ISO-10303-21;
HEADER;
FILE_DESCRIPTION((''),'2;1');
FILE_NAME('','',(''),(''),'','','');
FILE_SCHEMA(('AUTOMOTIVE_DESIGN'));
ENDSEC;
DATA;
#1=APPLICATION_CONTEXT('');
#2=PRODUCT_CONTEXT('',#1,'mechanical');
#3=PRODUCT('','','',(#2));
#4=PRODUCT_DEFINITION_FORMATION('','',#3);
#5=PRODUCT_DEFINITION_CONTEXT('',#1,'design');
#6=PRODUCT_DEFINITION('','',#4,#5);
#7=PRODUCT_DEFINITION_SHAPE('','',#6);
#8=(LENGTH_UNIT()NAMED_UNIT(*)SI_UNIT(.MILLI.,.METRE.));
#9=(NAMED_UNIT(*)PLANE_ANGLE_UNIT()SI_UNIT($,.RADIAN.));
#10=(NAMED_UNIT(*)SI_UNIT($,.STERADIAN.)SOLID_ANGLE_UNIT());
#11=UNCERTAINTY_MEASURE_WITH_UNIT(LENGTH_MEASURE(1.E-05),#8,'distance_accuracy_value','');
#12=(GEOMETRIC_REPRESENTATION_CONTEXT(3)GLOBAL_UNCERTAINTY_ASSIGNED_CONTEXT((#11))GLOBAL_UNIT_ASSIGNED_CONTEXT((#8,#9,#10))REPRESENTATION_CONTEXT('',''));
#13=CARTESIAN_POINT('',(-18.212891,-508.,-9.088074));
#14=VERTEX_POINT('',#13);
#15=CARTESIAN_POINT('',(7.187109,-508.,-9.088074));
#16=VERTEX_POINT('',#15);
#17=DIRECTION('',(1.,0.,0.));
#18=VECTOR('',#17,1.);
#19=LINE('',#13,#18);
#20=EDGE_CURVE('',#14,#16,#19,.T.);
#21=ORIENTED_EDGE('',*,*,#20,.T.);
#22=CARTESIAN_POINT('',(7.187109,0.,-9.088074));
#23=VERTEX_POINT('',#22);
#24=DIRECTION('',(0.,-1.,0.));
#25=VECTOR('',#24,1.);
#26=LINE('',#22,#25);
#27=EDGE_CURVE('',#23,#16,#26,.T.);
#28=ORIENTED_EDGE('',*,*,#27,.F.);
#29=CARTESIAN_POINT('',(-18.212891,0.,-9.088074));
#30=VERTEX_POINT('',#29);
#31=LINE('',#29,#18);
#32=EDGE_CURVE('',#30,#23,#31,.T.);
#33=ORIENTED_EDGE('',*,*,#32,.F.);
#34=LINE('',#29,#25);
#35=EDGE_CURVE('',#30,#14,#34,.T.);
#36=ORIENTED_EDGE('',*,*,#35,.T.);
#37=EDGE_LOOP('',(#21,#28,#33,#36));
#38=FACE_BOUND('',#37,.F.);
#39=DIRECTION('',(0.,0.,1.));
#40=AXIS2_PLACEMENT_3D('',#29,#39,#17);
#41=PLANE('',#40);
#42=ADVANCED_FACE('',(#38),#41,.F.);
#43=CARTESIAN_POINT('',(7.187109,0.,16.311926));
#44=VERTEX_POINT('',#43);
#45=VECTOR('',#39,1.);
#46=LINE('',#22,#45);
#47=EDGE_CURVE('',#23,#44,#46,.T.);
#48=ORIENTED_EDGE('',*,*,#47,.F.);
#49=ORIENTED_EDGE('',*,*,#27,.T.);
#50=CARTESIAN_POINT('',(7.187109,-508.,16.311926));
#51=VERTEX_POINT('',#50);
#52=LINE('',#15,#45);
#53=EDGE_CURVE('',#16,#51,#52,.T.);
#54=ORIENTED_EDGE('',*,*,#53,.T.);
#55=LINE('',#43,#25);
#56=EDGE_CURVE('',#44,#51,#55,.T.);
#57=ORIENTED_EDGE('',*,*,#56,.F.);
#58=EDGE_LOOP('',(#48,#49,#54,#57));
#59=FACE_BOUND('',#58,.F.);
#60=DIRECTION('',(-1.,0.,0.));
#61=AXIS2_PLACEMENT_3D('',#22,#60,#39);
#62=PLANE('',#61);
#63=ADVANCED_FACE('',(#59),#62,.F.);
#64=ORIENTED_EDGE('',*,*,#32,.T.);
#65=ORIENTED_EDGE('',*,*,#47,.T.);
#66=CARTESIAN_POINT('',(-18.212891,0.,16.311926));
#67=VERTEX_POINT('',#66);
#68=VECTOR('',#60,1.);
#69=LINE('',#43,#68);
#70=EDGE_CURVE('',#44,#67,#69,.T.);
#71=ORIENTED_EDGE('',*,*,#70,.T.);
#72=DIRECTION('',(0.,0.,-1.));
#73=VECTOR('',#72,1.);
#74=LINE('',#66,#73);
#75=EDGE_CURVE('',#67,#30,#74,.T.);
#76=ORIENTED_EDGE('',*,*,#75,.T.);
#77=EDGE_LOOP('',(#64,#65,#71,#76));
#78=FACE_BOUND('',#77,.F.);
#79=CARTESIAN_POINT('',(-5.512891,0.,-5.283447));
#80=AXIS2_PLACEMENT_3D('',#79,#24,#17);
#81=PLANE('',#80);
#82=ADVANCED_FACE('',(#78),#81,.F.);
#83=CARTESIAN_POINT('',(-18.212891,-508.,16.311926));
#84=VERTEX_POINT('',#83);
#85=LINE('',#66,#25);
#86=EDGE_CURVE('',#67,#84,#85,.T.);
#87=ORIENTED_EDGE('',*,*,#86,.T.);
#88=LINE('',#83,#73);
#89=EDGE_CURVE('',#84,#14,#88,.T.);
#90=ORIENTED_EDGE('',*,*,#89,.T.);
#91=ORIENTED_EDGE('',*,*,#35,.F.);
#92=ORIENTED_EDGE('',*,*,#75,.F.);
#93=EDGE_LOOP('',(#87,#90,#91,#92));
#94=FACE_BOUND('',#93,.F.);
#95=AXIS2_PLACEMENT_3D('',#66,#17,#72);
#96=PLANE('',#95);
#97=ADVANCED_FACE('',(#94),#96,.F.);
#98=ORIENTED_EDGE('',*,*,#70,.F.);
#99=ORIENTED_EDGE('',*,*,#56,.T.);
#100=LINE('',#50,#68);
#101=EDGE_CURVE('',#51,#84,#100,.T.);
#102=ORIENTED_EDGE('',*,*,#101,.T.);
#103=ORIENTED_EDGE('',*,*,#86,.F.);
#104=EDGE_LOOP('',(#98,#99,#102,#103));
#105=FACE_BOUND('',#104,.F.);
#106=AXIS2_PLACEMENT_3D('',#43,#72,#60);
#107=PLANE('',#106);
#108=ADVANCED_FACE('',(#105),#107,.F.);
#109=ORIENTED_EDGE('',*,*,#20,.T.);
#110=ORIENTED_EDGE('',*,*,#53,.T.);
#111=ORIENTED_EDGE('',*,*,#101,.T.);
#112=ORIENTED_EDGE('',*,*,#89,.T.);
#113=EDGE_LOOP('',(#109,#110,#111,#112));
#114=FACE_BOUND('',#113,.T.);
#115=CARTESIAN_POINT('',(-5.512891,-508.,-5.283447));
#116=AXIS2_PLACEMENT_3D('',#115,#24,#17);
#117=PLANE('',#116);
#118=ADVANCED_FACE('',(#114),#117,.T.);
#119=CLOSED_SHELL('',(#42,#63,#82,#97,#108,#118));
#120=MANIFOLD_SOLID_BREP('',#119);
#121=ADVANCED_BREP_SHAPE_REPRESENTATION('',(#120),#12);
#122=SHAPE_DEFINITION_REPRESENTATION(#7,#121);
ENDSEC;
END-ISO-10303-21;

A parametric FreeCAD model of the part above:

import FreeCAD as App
import Part
import Sketcher
from FreeCAD import Vector
Q = App.Units.Quantity


def add_polygon(sketch, points):
    """Adds a closed chain of lines whose ends are joined by coincident constraints."""
    first, n = sketch.GeometryCount, len(points)
    for a, b in zip(points, points[1:] + points[:1]):
        sketch.addGeometry(Part.LineSegment(App.Vector(*a, 0), App.Vector(*b, 0)), False)
    for i in range(n):
        sketch.addConstraint(Sketcher.Constraint("Coincident", first + i, 2, first + (i + 1) % n, 1))

doc = App.newDocument("Part")
body = doc.addObject("PartDesign::Body", "Body")

# Sketch on XZ plane
sketch1 = doc.addObject("Sketcher::SketchObject", "Sketch")
body.addObject(sketch1)
sketch1.AttachmentSupport = (doc.XZ_Plane, [""])
sketch1.MapMode = "FlatFace"
add_polygon(sketch1, [(-18, -9), (7, -9), (7, 16), (-18, 16)])  # lines 0-3
sketch1.addConstraint([
    Sketcher.Constraint("Horizontal", 0),
    Sketcher.Constraint("Vertical", 1),
    Sketcher.Constraint("Horizontal", 2),
    Sketcher.Constraint("Vertical", 3),
    Sketcher.Constraint("Equal", 2, 1),
    Sketcher.Constraint("DistanceX", 0, 1, 0, 2, Q("1 in")),
    Sketcher.Constraint("DistanceX", -1, 1, 0, 2, Q("7.187109 mm")),
    Sketcher.Constraint("DistanceY", 0, 2, -1, 1, Q("9.088074 mm")),
])
pad1 = doc.addObject("PartDesign::Pad", "Pad")
body.addObject(pad1)
pad1.Profile = sketch1
pad1.Length = Q("20 in")

doc.recompute()
